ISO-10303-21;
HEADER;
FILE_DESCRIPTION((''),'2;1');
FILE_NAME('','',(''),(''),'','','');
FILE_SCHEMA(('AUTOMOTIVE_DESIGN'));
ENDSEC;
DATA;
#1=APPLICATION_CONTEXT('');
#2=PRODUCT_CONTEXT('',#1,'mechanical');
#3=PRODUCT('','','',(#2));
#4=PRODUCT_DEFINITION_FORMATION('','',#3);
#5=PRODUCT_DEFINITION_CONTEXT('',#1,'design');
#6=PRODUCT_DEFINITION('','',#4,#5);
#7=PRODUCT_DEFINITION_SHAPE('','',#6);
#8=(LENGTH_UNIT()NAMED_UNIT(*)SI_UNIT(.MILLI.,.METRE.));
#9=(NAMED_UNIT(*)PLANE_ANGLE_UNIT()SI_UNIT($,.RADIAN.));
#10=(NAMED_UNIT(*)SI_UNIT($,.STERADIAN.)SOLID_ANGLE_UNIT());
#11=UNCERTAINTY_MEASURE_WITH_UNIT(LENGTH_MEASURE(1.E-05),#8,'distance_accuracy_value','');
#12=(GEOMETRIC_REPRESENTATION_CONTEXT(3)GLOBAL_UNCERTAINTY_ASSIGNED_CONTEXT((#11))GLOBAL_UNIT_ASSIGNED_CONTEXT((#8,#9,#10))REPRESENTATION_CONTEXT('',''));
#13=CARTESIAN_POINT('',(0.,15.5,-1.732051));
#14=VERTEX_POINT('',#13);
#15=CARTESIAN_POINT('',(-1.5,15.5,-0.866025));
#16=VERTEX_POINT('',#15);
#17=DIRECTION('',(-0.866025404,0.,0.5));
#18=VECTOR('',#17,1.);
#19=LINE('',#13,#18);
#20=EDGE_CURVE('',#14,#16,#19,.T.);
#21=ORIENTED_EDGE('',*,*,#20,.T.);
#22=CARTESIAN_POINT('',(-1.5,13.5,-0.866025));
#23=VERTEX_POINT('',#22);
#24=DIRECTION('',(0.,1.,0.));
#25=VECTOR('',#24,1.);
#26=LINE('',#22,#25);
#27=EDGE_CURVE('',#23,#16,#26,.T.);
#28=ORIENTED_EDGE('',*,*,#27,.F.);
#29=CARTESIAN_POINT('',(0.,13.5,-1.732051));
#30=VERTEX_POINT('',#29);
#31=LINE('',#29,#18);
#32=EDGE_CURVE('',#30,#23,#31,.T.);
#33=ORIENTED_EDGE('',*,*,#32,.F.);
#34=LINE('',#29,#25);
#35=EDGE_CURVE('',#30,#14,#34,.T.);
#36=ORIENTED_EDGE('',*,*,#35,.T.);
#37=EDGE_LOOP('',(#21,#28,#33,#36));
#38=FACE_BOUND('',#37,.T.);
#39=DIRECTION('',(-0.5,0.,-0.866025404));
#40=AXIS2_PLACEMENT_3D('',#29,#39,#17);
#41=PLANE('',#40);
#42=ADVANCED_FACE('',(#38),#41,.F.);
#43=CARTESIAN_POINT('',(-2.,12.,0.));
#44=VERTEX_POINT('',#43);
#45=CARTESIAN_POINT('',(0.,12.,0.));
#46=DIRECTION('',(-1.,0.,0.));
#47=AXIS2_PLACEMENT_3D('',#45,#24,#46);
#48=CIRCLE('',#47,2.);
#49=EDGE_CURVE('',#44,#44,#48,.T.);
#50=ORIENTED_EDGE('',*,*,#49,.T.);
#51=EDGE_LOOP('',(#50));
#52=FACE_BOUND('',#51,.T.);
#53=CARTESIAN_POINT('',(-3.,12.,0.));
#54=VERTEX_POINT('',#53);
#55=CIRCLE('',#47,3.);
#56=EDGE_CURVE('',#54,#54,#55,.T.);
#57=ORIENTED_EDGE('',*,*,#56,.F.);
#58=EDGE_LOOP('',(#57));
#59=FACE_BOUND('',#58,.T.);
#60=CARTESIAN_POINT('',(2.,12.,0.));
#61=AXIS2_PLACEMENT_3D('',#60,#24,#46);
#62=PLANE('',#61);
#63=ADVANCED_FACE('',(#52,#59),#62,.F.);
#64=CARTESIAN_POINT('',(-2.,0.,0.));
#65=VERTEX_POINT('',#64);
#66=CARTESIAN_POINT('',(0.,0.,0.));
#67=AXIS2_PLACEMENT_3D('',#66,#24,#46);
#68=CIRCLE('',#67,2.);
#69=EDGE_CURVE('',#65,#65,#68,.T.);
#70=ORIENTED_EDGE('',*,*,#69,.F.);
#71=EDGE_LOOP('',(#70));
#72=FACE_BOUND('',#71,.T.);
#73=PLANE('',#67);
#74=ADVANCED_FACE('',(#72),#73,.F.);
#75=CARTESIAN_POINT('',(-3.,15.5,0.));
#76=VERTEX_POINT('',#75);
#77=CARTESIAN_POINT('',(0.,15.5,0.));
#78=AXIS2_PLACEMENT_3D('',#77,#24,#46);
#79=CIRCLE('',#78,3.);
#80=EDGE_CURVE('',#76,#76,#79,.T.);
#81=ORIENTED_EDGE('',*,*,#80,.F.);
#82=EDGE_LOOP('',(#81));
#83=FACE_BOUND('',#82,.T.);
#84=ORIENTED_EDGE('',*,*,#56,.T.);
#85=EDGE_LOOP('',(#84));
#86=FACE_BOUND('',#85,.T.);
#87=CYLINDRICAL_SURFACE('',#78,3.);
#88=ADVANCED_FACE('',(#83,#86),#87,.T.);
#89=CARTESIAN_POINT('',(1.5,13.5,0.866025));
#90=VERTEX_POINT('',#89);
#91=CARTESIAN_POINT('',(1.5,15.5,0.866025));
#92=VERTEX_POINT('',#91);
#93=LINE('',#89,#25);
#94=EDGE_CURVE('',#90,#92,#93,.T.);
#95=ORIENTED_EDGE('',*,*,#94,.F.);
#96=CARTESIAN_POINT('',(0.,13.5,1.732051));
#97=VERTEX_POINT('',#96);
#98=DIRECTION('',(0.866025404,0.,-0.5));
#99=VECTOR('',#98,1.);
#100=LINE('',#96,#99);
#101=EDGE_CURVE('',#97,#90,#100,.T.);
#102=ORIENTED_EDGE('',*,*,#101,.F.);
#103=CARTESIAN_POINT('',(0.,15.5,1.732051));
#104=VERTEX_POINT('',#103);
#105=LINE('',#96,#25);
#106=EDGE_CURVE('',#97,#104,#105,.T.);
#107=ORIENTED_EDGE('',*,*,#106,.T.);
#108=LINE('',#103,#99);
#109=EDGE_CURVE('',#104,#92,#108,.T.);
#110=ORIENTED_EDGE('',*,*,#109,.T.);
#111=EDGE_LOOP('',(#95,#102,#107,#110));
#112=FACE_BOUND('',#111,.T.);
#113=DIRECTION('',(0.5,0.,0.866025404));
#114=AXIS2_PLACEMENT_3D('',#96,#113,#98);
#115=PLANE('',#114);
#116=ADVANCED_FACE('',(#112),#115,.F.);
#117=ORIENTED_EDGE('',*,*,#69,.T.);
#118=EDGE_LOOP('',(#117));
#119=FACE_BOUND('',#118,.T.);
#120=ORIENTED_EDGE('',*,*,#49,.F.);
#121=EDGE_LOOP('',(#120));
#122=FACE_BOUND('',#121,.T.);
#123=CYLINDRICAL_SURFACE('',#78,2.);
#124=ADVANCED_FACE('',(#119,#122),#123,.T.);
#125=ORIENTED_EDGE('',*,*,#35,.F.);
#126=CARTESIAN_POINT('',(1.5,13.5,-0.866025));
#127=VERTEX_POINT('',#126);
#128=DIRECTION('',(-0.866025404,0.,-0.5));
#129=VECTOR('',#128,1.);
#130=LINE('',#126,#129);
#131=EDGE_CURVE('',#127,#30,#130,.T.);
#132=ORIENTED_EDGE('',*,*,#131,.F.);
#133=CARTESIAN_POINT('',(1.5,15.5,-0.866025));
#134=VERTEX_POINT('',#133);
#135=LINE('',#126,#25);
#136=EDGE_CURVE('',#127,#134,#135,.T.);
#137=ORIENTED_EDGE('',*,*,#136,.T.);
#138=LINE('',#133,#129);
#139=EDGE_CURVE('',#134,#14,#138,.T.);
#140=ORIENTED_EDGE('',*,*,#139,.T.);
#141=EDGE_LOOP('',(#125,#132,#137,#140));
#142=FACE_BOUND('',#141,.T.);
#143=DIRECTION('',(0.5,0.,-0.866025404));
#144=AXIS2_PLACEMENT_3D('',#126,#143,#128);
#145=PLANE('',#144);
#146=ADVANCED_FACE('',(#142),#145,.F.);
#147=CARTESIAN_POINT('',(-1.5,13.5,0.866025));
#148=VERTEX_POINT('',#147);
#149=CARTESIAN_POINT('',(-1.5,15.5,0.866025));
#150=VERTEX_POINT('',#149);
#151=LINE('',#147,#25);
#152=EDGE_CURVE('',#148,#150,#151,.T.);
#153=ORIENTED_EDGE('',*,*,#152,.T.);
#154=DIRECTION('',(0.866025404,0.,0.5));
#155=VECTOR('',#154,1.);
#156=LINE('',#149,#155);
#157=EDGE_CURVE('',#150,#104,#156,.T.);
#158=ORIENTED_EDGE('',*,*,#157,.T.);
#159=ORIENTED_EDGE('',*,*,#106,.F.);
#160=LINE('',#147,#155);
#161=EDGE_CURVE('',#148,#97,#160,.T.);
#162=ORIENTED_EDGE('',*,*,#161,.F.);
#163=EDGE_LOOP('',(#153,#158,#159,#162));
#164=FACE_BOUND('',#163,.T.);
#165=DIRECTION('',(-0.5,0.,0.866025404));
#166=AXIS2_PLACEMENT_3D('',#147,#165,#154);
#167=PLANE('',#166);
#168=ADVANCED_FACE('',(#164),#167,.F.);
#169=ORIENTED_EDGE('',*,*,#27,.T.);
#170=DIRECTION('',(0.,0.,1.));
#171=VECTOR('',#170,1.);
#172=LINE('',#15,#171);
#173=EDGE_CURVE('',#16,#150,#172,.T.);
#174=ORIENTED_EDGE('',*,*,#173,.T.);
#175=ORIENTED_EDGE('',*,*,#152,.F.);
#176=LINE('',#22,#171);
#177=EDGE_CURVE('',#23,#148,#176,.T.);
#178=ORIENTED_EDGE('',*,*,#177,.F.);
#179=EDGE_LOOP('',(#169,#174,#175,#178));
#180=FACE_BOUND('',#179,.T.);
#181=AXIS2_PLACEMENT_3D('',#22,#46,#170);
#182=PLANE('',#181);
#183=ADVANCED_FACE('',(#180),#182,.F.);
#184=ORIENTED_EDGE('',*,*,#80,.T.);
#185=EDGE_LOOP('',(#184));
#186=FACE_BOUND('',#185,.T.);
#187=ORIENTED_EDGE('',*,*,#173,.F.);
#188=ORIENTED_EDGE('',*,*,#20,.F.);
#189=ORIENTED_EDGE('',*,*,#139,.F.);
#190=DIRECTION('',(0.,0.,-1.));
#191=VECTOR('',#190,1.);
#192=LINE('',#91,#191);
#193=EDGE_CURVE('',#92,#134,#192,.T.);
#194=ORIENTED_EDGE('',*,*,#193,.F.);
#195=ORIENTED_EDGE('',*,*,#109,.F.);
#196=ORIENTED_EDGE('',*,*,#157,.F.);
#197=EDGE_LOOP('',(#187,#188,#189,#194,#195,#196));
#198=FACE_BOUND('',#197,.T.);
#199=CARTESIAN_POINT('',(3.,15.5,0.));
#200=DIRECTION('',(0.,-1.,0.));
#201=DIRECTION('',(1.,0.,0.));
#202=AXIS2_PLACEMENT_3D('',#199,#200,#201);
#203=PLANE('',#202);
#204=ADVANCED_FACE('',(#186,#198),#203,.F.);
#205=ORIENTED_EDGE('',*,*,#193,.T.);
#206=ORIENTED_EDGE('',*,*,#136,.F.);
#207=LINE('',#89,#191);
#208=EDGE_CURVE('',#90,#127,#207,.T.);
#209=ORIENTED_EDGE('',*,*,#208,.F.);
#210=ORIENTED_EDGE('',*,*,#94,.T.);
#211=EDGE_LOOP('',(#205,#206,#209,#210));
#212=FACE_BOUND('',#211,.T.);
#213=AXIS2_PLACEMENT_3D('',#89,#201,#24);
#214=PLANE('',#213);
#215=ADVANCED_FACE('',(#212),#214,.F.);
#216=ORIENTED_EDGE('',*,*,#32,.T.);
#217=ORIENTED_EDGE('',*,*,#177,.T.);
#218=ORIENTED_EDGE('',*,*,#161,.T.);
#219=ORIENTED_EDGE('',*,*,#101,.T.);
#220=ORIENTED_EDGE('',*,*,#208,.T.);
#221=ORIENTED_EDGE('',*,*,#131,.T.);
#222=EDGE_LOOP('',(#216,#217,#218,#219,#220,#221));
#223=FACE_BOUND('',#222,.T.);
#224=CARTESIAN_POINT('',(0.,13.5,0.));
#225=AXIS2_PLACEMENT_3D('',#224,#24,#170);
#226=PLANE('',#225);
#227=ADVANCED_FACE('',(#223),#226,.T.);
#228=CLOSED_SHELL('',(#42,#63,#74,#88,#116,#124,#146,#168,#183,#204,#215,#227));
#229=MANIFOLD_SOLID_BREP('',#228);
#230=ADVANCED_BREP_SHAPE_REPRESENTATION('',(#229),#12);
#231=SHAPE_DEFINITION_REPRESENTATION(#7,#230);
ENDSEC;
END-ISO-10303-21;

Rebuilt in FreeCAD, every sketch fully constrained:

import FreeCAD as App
import Part
import Sketcher
from FreeCAD import Vector
Q = App.Units.Quantity


def add_polygon(sketch, points):
    """Adds a closed chain of lines whose ends are joined by coincident constraints."""
    first, n = sketch.GeometryCount, len(points)
    for a, b in zip(points, points[1:] + points[:1]):
        sketch.addGeometry(Part.LineSegment(App.Vector(*a, 0), App.Vector(*b, 0)), False)
    for i in range(n):
        sketch.addConstraint(Sketcher.Constraint("Coincident", first + i, 2, first + (i + 1) % n, 1))

doc = App.newDocument("Part")
params = doc.addObject("Spreadsheet::Sheet", "Params")
for row, (alias, value) in enumerate([
    ("sketch1_width", "2 mm"),
    ("sketch1_width2", "1 mm"),
    ("sketch1_height", "12 mm"),
    ("sketch1_height2", "15.5 mm"),
    ("revolution_angle", "360 deg"),
    ("pocket1_length", "2 mm"),
], start=1):
    params.set(f"A{row}", alias)
    params.set(f"B{row}", "=" + value)
    params.setAlias(f"B{row}", alias)

body = doc.addObject("PartDesign::Body", "Body")

# Sketch on XY plane
sketch1 = body.newObject("Sketcher::SketchObject", "Sketch")
sketch1.AttachmentSupport = (doc.getObject("XY_Plane"), [""])
sketch1.MapMode = "FlatFace"
add_polygon(sketch1, [(0, 15.5), (0, 0), (2, 0), (2, 12), (3, 12), (3, 15.5)])  # lines 0-5
sketch1.addConstraint(Sketcher.Constraint("Vertical", 0))
sketch1.addConstraint(Sketcher.Constraint("Horizontal", 1))
sketch1.addConstraint(Sketcher.Constraint("Vertical", 2))
sketch1.addConstraint(Sketcher.Constraint("Horizontal", 3))
sketch1.addConstraint(Sketcher.Constraint("Vertical", 4))
sketch1.addConstraint(Sketcher.Constraint("Horizontal", 5))
sketch1.addConstraint(Sketcher.Constraint("Coincident", 0, 2, -1, 1))
sketch1.addConstraint(Sketcher.Constraint("DistanceX", 1, 1, 1, 2, 2.0))
sketch1.addConstraint(Sketcher.Constraint("DistanceX", 3, 1, 3, 2, 1.0))
sketch1.addConstraint(Sketcher.Constraint("DistanceY", 2, 1, 2, 2, 12.0))
sketch1.addConstraint(Sketcher.Constraint("DistanceY", 0, 2, 0, 1, 15.5))
sketch1.setExpression("Constraints[13]", "Params.sketch1_width")
sketch1.setExpression("Constraints[14]", "Params.sketch1_width2")
sketch1.setExpression("Constraints[15]", "Params.sketch1_height")
sketch1.setExpression("Constraints[16]", "Params.sketch1_height2")
revolution = body.newObject("PartDesign::Revolution", "Revolution")
revolution.Profile = sketch1
revolution.ReferenceAxis = (sketch1, ["V_Axis"])
revolution.setExpression("Angle", "Params.revolution_angle")

# Sketch on XZ plane
sketch2 = body.newObject("Sketcher::SketchObject", "Sketch001")
sketch2.AttachmentSupport = (doc.getObject("XZ_Plane"), [""])
sketch2.MapMode = "FlatFace"
sketch2.AttachmentOffset = App.Placement(Vector(0, 0, -15.5), App.Rotation())
add_polygon(sketch2, [(0, 1.7), (1.5, 0.9), (1.5, -0.9), (0, -1.7), (-1.5, -0.9), (-1.5, 0.9)])  # lines 0-5
sketch2.addConstraint(Sketcher.Constraint("Vertical", 1))
sketch2.addConstraint(Sketcher.Constraint("Vertical", 4))
sketch2.addConstraint(Sketcher.Constraint("Symmetric", 0, 2, 3, 2, -1, 1))
sketch2.addConstraint(Sketcher.Constraint("Symmetric", 2, 2, 5, 2, -1, 1))
sketch2.addConstraint(Sketcher.Constraint("PointOnObject", 2, 2, -2))
sketch2.addConstraint(Sketcher.Constraint("Parallel", 2, 5))
sketch2.addConstraint(Sketcher.Constraint("Horizontal", 1, 2, 3, 2))
sketch2.addConstraint(Sketcher.Constraint("Angle", 0, Q("-30 deg")))
sketch2.addConstraint(Sketcher.Constraint("DistanceX", 3, 2, 1, 2, 3.0))
sketch2.addConstraint(Sketcher.Constraint("DistanceY", 1, 2, 1, 1, 1.732051))
pocket1 = body.newObject("PartDesign::Pocket", "Pocket")
pocket1.Profile = sketch2
pocket1.setExpression("Length", "Params.pocket1_length")
pocket1.Reversed = True

doc.recompute()
